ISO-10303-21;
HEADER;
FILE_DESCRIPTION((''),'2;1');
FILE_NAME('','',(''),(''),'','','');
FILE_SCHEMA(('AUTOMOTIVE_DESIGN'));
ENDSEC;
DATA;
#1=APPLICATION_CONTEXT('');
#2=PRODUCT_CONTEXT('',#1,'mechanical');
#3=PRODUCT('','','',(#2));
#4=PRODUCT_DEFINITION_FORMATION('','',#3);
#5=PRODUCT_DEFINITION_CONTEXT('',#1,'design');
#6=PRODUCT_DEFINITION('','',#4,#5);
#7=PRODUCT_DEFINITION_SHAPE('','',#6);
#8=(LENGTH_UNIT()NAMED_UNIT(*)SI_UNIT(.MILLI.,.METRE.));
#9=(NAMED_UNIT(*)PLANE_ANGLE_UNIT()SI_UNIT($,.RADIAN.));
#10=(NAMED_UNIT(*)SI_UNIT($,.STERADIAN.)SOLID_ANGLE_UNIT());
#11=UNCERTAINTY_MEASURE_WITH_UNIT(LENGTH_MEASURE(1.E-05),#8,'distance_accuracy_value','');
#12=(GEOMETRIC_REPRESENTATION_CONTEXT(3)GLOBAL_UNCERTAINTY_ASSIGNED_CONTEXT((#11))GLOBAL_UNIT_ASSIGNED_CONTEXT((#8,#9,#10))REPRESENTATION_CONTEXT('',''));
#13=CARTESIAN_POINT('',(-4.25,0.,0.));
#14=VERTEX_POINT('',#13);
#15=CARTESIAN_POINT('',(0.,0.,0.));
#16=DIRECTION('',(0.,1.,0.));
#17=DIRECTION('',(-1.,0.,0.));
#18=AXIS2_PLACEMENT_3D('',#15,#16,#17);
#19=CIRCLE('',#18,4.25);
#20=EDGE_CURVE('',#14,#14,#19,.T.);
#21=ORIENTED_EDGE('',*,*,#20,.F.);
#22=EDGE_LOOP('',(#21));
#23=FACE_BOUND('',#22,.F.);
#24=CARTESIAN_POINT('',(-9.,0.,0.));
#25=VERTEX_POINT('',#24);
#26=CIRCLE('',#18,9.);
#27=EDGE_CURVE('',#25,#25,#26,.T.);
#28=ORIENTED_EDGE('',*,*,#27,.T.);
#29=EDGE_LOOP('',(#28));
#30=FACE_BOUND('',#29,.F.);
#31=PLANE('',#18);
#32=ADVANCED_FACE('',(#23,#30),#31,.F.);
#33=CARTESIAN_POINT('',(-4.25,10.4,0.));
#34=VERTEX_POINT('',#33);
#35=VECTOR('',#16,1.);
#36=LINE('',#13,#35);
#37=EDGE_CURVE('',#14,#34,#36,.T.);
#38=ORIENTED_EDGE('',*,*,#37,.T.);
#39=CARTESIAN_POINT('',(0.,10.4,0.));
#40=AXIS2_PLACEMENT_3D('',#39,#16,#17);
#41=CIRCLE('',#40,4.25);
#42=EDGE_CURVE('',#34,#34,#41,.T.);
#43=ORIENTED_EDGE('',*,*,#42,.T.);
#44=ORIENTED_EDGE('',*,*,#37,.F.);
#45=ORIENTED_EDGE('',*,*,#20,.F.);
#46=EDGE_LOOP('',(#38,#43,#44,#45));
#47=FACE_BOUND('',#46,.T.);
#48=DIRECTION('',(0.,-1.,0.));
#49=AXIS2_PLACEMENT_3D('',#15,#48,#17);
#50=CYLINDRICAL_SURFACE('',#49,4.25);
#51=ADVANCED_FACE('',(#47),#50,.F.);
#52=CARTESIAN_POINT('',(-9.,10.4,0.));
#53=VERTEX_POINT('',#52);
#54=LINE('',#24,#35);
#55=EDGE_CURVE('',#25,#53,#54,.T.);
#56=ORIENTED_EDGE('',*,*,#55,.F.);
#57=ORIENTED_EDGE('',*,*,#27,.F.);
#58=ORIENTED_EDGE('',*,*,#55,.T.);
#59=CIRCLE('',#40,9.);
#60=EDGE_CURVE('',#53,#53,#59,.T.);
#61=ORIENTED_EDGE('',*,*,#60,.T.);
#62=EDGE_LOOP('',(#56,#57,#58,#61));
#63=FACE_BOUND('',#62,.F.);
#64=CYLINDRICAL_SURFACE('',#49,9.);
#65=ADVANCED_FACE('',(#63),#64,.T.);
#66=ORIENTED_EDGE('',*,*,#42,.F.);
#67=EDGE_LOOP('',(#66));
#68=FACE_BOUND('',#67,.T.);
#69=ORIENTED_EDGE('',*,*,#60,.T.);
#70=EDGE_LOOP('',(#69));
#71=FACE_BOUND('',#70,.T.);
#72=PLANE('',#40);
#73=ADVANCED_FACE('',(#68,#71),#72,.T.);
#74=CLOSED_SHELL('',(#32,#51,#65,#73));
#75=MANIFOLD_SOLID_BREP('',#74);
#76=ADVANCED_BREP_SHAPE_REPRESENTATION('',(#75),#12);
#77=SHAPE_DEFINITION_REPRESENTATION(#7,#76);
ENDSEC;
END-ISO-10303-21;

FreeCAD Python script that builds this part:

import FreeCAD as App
import Part
import Sketcher

V = App.Vector
Q = App.Units.Quantity

doc = App.newDocument("Part")
body = doc.addObject("PartDesign::Body", "Body")

# Sketch on XZ plane
sketch1 = body.newObject("Sketcher::SketchObject", "Sketch")
sketch1.AttachmentSupport = (doc.getObject("XZ_Plane"), [""])
sketch1.MapMode = "FlatFace"
sketch1.addGeometry(Part.Circle(V(0, 0, 0), V(0, 0, 1), 9), False)
sketch1.addGeometry(Part.Circle(V(0, 0, 0), V(0, 0, 1), 4.25), False)
sketch1.addConstraint(Sketcher.Constraint("Coincident", 0, 3, -1, 1))
sketch1.addConstraint(Sketcher.Constraint("Coincident", 1, 3, -1, 1))
sketch1.addConstraint(Sketcher.Constraint("Diameter", 0, Q("18 mm")))
sketch1.addConstraint(Sketcher.Constraint("Diameter", 1, Q("8.5 mm")))
pad1 = body.newObject("PartDesign::Pad", "Pad")
pad1.Profile = sketch1
pad1.Length = 10.4
pad1.Reversed = True

doc.recompute()
